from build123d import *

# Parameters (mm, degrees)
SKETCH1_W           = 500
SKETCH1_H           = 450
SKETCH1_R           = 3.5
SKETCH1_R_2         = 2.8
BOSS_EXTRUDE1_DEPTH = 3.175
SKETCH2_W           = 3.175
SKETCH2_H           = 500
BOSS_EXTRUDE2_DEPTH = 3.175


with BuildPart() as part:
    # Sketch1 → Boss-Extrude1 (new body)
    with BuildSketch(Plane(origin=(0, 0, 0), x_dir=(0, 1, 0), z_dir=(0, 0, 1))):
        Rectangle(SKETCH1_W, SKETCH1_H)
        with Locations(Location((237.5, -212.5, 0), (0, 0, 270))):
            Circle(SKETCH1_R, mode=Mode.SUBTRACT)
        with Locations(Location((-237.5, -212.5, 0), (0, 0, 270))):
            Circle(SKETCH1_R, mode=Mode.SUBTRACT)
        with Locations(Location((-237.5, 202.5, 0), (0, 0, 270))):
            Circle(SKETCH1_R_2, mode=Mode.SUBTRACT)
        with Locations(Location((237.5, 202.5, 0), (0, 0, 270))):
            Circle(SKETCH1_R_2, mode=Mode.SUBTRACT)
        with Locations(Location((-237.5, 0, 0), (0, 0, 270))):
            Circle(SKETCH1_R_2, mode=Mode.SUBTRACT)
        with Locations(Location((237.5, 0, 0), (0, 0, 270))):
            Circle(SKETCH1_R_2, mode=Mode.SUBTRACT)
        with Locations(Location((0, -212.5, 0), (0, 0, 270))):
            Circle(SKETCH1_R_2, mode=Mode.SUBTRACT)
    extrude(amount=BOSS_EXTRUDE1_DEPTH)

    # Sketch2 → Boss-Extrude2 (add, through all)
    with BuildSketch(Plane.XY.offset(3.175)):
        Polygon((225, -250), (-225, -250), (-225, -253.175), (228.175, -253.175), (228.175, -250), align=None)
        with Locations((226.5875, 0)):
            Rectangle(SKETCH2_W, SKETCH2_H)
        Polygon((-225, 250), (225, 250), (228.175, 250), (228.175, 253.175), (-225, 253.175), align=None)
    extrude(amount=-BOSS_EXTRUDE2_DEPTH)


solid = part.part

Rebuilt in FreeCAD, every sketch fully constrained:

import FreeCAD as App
import Part
import Sketcher
from FreeCAD import Vector

doc = App.newDocument("Part")
body = doc.addObject("PartDesign::Body", "Body")

# Sketch on XY plane
sketch1 = doc.addObject("Sketcher::SketchObject", "Sketch")
body.addObject(sketch1)
sketch1.AttachmentSupport = (doc.XY_Plane, [""])
sketch1.MapMode = "FlatFace"
sketch1.addGeometry([
    Part.LineSegment(Vector(-225, -250, 0), Vector(225, -250, 0)),  # 0
    Part.LineSegment(Vector(225, -250, 0), Vector(225, 250, 0)),  # 1
    Part.LineSegment(Vector(225, 250, 0), Vector(-225, 250, 0)),  # 2
    Part.LineSegment(Vector(-225, 250, 0), Vector(-225, -250, 0)),  # 3
    Part.Circle(Vector(212.5, -237.5, 0), Vector(0, 0, 1), 3.5),  # 4
    Part.Circle(Vector(212.5, 0, 0), Vector(0, 0, 1), 2.8),  # 5
    Part.Circle(Vector(212.5, 237.5, 0), Vector(0, 0, 1), 3.5),  # 6
    Part.Circle(Vector(0, -237.5, 0), Vector(0, 0, 1), 2.8),  # 7
    Part.Circle(Vector(-202.5, -237.5, 0), Vector(0, 0, 1), 2.8),  # 8
    Part.Circle(Vector(0, 237.5, 0), Vector(0, 0, 1), 2.8),  # 9
    Part.Circle(Vector(-202.5, 237.5, 0), Vector(0, 0, 1), 2.8),  # 10
], False)
sketch1.addConstraint([
    Sketcher.Constraint("Coincident", 0, 2, 1, 1),
    Sketcher.Constraint("Coincident", 1, 2, 2, 1),
    Sketcher.Constraint("Coincident", 2, 2, 3, 1),
    Sketcher.Constraint("Coincident", 3, 2, 0, 1),
    Sketcher.Constraint("Horizontal", 0),
    Sketcher.Constraint("Vertical", 1),
    Sketcher.Constraint("Horizontal", 2),
    Sketcher.Constraint("Vertical", 3),
    Sketcher.Constraint("Equal", 4, 6),
    Sketcher.Constraint("Equal", 5, 7),
    Sketcher.Constraint("Equal", 7, 8),
    Sketcher.Constraint("Equal", 8, 9),
    Sketcher.Constraint("Equal", 9, 10),
    Sketcher.Constraint("Symmetric", 7, 3, 9, 3, -1, 1),
    Sketcher.Constraint("Symmetric", 0, 2, 2, 2, -1, 1),
    Sketcher.Constraint("Symmetric", 4, 3, 6, 3, -1),
    Sketcher.Constraint("Symmetric", 8, 3, 10, 3, -1),
    Sketcher.Constraint("PointOnObject", 5, 3, -1),
    Sketcher.Constraint("PointOnObject", 7, 3, -2),
    Sketcher.Constraint("Horizontal", 4, 3, 7, 3),
    Sketcher.Constraint("Horizontal", 7, 3, 8, 3),
    Sketcher.Constraint("Vertical", 4, 3, 5, 3),
    Sketcher.Constraint("Diameter", 4, 7.0),
    Sketcher.Constraint("Diameter", 5, 5.6),
    Sketcher.Constraint("DistanceX", 0, 1, 0, 2, 450.0),
    Sketcher.Constraint("DistanceY", 1, 1, 1, 2, 500.0),
    Sketcher.Constraint("DistanceY", 4, 3, 6, 3, 475.0),
    Sketcher.Constraint("DistanceX", 8, 3, 4, 3, 415.0),
    Sketcher.Constraint("DistanceX", -1, 1, 4, 3, 212.5),
])
pad1 = doc.addObject("PartDesign::Pad", "Pad")
body.addObject(pad1)
pad1.Profile = sketch1
pad1.Length = 3.175

# Sketch on XY plane
sketch2 = doc.addObject("Sketcher::SketchObject", "Sketch001")
body.addObject(sketch2)
sketch2.AttachmentSupport = (doc.XY_Plane, [""])
sketch2.MapMode = "FlatFace"
sketch2.AttachmentOffset = App.Placement(Vector(0, 0, 3.175), App.Rotation())
sketch2.addGeometry([
    Part.LineSegment(Vector(-225, -250, 0), Vector(-225, -253.175, 0)),  # 0
    Part.LineSegment(Vector(-225, -253.175, 0), Vector(228.175, -253.175, 0)),  # 1
    Part.LineSegment(Vector(228.175, -253.175, 0), Vector(228.175, 253.175, 0)),  # 2
    Part.LineSegment(Vector(228.175, 253.175, 0), Vector(-225, 253.175, 0)),  # 3
    Part.LineSegment(Vector(-225, 253.175, 0), Vector(-225, 250, 0)),  # 4
    Part.LineSegment(Vector(-225, 250, 0), Vector(225, 250, 0)),  # 5
    Part.LineSegment(Vector(225, 250, 0), Vector(225, -250, 0)),  # 6
    Part.LineSegment(Vector(225, -250, 0), Vector(-225, -250, 0)),  # 7
], False)
sketch2.addConstraint([
    Sketcher.Constraint("Coincident", 0, 2, 1, 1),
    Sketcher.Constraint("Coincident", 1, 2, 2, 1),
    Sketcher.Constraint("Coincident", 2, 2, 3, 1),
    Sketcher.Constraint("Coincident", 3, 2, 4, 1),
    Sketcher.Constraint("Coincident", 4, 2, 5, 1),
    Sketcher.Constraint("Coincident", 5, 2, 6, 1),
    Sketcher.Constraint("Coincident", 6, 2, 7, 1),
    Sketcher.Constraint("Coincident", 7, 2, 0, 1),
    Sketcher.Constraint("Vertical", 0),
    Sketcher.Constraint("Horizontal", 1),
    Sketcher.Constraint("Vertical", 2),
    Sketcher.Constraint("Horizontal", 3),
    Sketcher.Constraint("Vertical", 4),
    Sketcher.Constraint("Horizontal", 5),
    Sketcher.Constraint("Vertical", 6),
    Sketcher.Constraint("Horizontal", 7),
    Sketcher.Constraint("Symmetric", 4, 2, 6, 2, -1, 1),
    Sketcher.Constraint("Symmetric", 0, 2, 3, 2, -1),
    Sketcher.Constraint("DistanceX", 5, 1, 5, 2, 450.0),
    Sketcher.Constraint("DistanceY", 6, 2, 6, 1, 500.0),
    Sketcher.Constraint("DistanceY", 2, 1, 2, 2, 506.35),
    Sketcher.Constraint("DistanceX", 1, 1, 1, 2, 453.175),
])
pad2 = doc.addObject("PartDesign::Pad", "Pad001")
body.addObject(pad2)
pad2.Profile = sketch2
pad2.Type = "UpToLast"
pad2.Reversed = True

doc.recompute()
